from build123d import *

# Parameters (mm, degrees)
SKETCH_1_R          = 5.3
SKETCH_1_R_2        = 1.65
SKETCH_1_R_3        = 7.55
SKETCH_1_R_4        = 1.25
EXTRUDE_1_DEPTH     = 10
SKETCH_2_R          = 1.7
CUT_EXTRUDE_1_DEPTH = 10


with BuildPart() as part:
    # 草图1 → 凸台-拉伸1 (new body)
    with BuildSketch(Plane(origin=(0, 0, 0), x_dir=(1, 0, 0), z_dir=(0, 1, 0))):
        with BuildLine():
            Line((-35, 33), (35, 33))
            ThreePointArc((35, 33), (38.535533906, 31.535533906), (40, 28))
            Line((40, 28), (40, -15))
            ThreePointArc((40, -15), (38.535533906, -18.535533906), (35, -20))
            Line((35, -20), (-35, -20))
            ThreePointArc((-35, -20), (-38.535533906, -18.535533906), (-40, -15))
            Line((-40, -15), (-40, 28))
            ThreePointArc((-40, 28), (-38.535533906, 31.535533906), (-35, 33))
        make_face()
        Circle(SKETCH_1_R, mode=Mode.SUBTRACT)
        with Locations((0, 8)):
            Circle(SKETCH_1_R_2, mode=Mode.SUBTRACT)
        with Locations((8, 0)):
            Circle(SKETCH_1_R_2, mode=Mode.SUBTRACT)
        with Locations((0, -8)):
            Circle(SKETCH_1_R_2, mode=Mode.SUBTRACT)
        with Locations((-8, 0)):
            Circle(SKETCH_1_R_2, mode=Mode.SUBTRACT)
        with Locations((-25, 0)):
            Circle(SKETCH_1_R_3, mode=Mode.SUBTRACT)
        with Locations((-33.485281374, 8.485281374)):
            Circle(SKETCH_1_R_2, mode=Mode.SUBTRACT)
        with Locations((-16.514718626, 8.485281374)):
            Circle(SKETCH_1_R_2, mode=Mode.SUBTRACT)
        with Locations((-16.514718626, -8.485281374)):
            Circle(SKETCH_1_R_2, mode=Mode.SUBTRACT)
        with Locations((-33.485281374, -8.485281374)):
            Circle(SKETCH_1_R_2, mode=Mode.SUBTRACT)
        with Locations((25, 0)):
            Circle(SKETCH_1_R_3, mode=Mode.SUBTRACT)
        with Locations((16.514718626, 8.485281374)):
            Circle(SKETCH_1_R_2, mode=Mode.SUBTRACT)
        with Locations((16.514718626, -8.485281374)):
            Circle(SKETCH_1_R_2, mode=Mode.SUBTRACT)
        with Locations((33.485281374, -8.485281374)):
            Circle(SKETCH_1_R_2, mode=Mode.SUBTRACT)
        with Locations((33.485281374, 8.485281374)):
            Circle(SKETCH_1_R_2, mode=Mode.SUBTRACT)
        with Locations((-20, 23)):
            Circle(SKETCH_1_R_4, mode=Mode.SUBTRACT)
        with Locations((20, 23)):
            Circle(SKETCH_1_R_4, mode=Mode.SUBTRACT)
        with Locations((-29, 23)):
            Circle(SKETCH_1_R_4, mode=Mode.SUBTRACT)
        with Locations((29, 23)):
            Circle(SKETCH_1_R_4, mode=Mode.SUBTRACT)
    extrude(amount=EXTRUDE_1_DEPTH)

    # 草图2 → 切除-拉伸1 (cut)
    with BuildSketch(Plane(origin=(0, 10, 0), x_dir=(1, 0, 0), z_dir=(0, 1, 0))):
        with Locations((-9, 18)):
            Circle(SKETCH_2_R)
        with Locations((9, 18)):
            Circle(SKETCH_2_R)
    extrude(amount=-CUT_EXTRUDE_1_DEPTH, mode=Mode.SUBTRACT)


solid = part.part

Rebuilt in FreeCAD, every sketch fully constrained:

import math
import FreeCAD as App
import Part
import Sketcher
Q = App.Units.Quantity

doc = App.newDocument("Part")
body = doc.addObject("PartDesign::Body", "Body")

sketch1 = body.newObject("Sketcher::SketchObject", "Sketch")
sketch1.AttachmentSupport = (doc.getObject("XZ_Plane"), [""])
sketch1.MapMode = "FlatFace"
sketch1.addGeometry([
    Part.LineSegment(App.Vector(35, -33, 0), App.Vector(-35, -33, 0)),
    Part.ArcOfCircle(Part.Circle(App.Vector(-35, -28, 0), App.Vector(0, 0, 1), 5), math.radians(180), math.radians(270)),
    Part.LineSegment(App.Vector(-40, -28, 0), App.Vector(-40, 15, 0)),
    Part.ArcOfCircle(Part.Circle(App.Vector(-35, 15, 0), App.Vector(0, 0, 1), 5), math.radians(90), math.radians(180)),
    Part.LineSegment(App.Vector(-35, 20, 0), App.Vector(35, 20, 0)),
    Part.ArcOfCircle(Part.Circle(App.Vector(35, 15, 0), App.Vector(0, 0, 1), 5), math.radians(0), math.radians(90)),
    Part.LineSegment(App.Vector(40, 15, 0), App.Vector(40, -28, 0)),
    Part.ArcOfCircle(Part.Circle(App.Vector(35, -28, 0), App.Vector(0, 0, 1), 5), math.radians(-90), math.radians(0)),
    Part.Circle(App.Vector(33.5, 8.5, 0), App.Vector(0, 0, 1), 1.6),
    Part.Circle(App.Vector(16.5, 8.5, 0), App.Vector(0, 0, 1), 1.6),
    Part.Circle(App.Vector(25, 0, 0), App.Vector(0, 0, 1), 7.5),
    Part.Circle(App.Vector(8, 0, 0), App.Vector(0, 0, 1), 1.6),
    Part.Circle(App.Vector(0, 8, 0), App.Vector(0, 0, 1), 1.6),
    Part.Circle(App.Vector(-16.5, 8.5, 0), App.Vector(0, 0, 1), 1.6),
    Part.Circle(App.Vector(-33.5, 8.5, 0), App.Vector(0, 0, 1), 1.6),
    Part.Circle(App.Vector(0, 0, 0), App.Vector(0, 0, 1), 5.3),
    Part.Circle(App.Vector(-8, 0, 0), App.Vector(0, 0, 1), 1.6),
    Part.Circle(App.Vector(-25, 0, 0), App.Vector(0, 0, 1), 7.5),
    Part.Circle(App.Vector(33.5, -8.5, 0), App.Vector(0, 0, 1), 1.6),
    Part.Circle(App.Vector(16.5, -8.5, 0), App.Vector(0, 0, 1), 1.6),
    Part.Circle(App.Vector(29, -23, 0), App.Vector(0, 0, 1), 1.2),
    Part.Circle(App.Vector(20, -23, 0), App.Vector(0, 0, 1), 1.2),
    Part.Circle(App.Vector(0, -8, 0), App.Vector(0, 0, 1), 1.6),
    Part.Circle(App.Vector(-16.5, -8.5, 0), App.Vector(0, 0, 1), 1.6),
    Part.Circle(App.Vector(-33.5, -8.5, 0), App.Vector(0, 0, 1), 1.6),
    Part.Circle(App.Vector(-20, -23, 0), App.Vector(0, 0, 1), 1.2),
    Part.Circle(App.Vector(-29, -23, 0), App.Vector(0, 0, 1), 1.2),
], False)
sketch1.addConstraint([
    Sketcher.Constraint("Tangent", 0, 2, 1, 2),
    Sketcher.Constraint("Tangent", 1, 1, 2, 1),
    Sketcher.Constraint("Tangent", 2, 2, 3, 2),
    Sketcher.Constraint("Tangent", 3, 1, 4, 1),
    Sketcher.Constraint("Tangent", 4, 2, 5, 2),
    Sketcher.Constraint("Tangent", 5, 1, 6, 1),
    Sketcher.Constraint("Tangent", 6, 2, 7, 2),
    Sketcher.Constraint("Tangent", 7, 1, 0, 1),
    Sketcher.Constraint("Horizontal", 0),
    Sketcher.Constraint("Vertical", 2),
    Sketcher.Constraint("Horizontal", 4),
    Sketcher.Constraint("Vertical", 6),
    Sketcher.Constraint("Coincident", 15, 3, -1, 1),
    Sketcher.Constraint("Equal", 1, 3),
    Sketcher.Constraint("Equal", 3, 5),
    Sketcher.Constraint("Equal", 5, 7),
    Sketcher.Constraint("Equal", 8, 9),
    Sketcher.Constraint("Equal", 9, 11),
    Sketcher.Constraint("Equal", 11, 12),
    Sketcher.Constraint("Equal", 12, 13),
    Sketcher.Constraint("Equal", 13, 14),
    Sketcher.Constraint("Equal", 14, 16),
    Sketcher.Constraint("Equal", 10, 17),
    Sketcher.Constraint("Equal", 16, 18),
    Sketcher.Constraint("Equal", 18, 19),
    Sketcher.Constraint("Equal", 20, 21),
    Sketcher.Constraint("Equal", 19, 22),
    Sketcher.Constraint("Equal", 22, 23),
    Sketcher.Constraint("Equal", 23, 24),
    Sketcher.Constraint("Equal", 21, 25),
    Sketcher.Constraint("Equal", 25, 26),
    Sketcher.Constraint("Symmetric", 11, 3, 16, 3, -1, 1),
    Sketcher.Constraint("Symmetric", 10, 3, 17, 3, -1, 1),
    Sketcher.Constraint("Symmetric", 14, 3, 18, 3, -1, 1),
    Sketcher.Constraint("Symmetric", 13, 3, 19, 3, -1, 1),
    Sketcher.Constraint("Symmetric", 12, 3, 22, 3, -1, 1),
    Sketcher.Constraint("Symmetric", 9, 3, 23, 3, -1, 1),
    Sketcher.Constraint("Symmetric", 8, 3, 24, 3, -1, 1),
    Sketcher.Constraint("Symmetric", 9, 3, 13, 3, -2),
    Sketcher.Constraint("Symmetric", 8, 3, 14, 3, -2),
    Sketcher.Constraint("Symmetric", 21, 3, 25, 3, -2),
    Sketcher.Constraint("Symmetric", 20, 3, 26, 3, -2),
    Sketcher.Constraint("PointOnObject", 10, 3, -1),
    Sketcher.Constraint("PointOnObject", 11, 3, -1),
    Sketcher.Constraint("PointOnObject", 12, 3, -2),
    Sketcher.Constraint("Horizontal", 8, 3, 9, 3),
    Sketcher.Constraint("Horizontal", 20, 3, 21, 3),
    Sketcher.Constraint("Radius", 1, Q("5 mm")),
    Sketcher.Constraint("Diameter", 8, Q("3.3 mm")),
    Sketcher.Constraint("Diameter", 10, Q("15.1 mm")),
    Sketcher.Constraint("Diameter", 15, Q("10.6 mm")),
    Sketcher.Constraint("Diameter", 20, Q("2.5 mm")),
    Sketcher.Constraint("DistanceX", 0, 2, 0, 1, Q("70 mm")),
    Sketcher.Constraint("DistanceY", 2, 1, 2, 2, Q("43 mm")),
    Sketcher.Constraint("DistanceX", 1, 3, -1, 1, Q("35 mm")),
    Sketcher.Constraint("DistanceY", 1, 3, -1, 1, Q("28 mm")),
    Sketcher.Constraint("DistanceX", -1, 1, 10, 3, Q("25 mm")),
    Sketcher.Constraint("DistanceX", -1, 1, 11, 3, Q("8 mm")),
    Sketcher.Constraint("DistanceY", -1, 1, 12, 3, Q("8 mm")),
    Sketcher.Constraint("DistanceX", -1, 1, 20, 3, Q("29 mm")),
    Sketcher.Constraint("DistanceY", 20, 3, -1, 1, Q("23 mm")),
    Sketcher.Constraint("DistanceX", -1, 1, 21, 3, Q("20 mm")),
    Sketcher.Constraint("DistanceX", -1, 1, 8, 3, Q("33.485281 mm")),
    Sketcher.Constraint("DistanceY", -1, 1, 8, 3, Q("8.485281 mm")),
    Sketcher.Constraint("DistanceX", -1, 1, 9, 3, Q("16.514719 mm")),
])
pad1 = body.newObject("PartDesign::Pad", "Pad")
pad1.Profile = sketch1
pad1.Length = 10
pad1.Reversed = True

sketch2 = body.newObject("Sketcher::SketchObject", "Sketch001")
sketch2.AttachmentSupport = (doc.getObject("XZ_Plane"), [""])
sketch2.MapMode = "FlatFace"
sketch2.AttachmentOffset = App.Placement(App.Vector(0, 0, -10), App.Rotation())
sketch2.addGeometry([
    Part.Circle(App.Vector(-9, -18, 0), App.Vector(0, 0, 1), 1.7),
    Part.Circle(App.Vector(9, -18, 0), App.Vector(0, 0, 1), 1.7),
], False)
sketch2.addConstraint([
    Sketcher.Constraint("Equal", 0, 1),
    Sketcher.Constraint("Symmetric", 0, 3, 1, 3, -2),
    Sketcher.Constraint("Diameter", 0, Q("3.4 mm")),
    Sketcher.Constraint("DistanceX", 0, 3, -1, 1, Q("9 mm")),
    Sketcher.Constraint("DistanceY", 0, 3, -1, 1, Q("18 mm")),
])
pocket1 = body.newObject("PartDesign::Pocket", "Pocket")
pocket1.Profile = sketch2
pocket1.Length = 10
pocket1.Reversed = True

doc.recompute()
